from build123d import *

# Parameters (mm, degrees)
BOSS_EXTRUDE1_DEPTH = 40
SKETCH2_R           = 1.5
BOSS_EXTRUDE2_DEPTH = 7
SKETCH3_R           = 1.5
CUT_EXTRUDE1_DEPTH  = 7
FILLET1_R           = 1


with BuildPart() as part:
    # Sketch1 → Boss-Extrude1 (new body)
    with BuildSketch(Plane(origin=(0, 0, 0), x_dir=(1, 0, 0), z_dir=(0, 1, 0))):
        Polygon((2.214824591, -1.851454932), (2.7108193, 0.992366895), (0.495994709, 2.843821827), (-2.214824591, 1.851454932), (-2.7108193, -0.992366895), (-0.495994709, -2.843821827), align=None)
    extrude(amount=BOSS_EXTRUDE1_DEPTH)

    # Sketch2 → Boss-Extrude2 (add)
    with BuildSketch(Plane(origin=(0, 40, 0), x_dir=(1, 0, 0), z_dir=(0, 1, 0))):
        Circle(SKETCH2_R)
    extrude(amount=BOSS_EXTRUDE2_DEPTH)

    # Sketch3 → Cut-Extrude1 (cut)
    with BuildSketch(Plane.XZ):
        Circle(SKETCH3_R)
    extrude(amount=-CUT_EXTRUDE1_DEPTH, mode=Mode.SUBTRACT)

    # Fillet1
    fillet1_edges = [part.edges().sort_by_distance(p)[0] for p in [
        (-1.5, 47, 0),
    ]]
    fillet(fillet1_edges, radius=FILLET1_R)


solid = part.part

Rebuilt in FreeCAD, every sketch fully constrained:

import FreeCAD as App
import Part
import Sketcher
from FreeCAD import Vector
Q = App.Units.Quantity


def edges_at(feature, points):
    """Names of the edges that pass closest to the given points."""
    edges = feature.Shape.Edges
    near = lambda p: min(range(len(edges)), key=lambda i: edges[i].distToShape(Part.Vertex(*p))[0])
    return sorted({f"Edge{near(p) + 1}" for p in points})


def add_polygon(sketch, points):
    """Adds a closed chain of lines whose ends are joined by coincident constraints."""
    first, n = sketch.GeometryCount, len(points)
    for a, b in zip(points, points[1:] + points[:1]):
        sketch.addGeometry(Part.LineSegment(App.Vector(*a, 0), App.Vector(*b, 0)), False)
    for i in range(n):
        sketch.addConstraint(Sketcher.Constraint("Coincident", first + i, 2, first + (i + 1) % n, 1))

doc = App.newDocument("Part")
body = doc.addObject("PartDesign::Body", "Body")

# Sketch on XZ plane
sketch1 = body.newObject("Sketcher::SketchObject", "Sketch")
sketch1.AttachmentSupport = (doc.getObject("XZ_Plane"), [""])
sketch1.MapMode = "FlatFace"
add_polygon(sketch1, [(2.2, 1.9), (2.7, -1), (0.5, -2.8), (-2.2, -1.9), (-2.7, 1), (-0.5, 2.8)])  # lines 0-5
sketch1.addConstraint([
    Sketcher.Constraint("Symmetric", 0, 2, 3, 2, -1, 1),
    Sketcher.Constraint("Symmetric", 1, 2, 4, 2, -1, 1),
    Sketcher.Constraint("Symmetric", 2, 2, 5, 2, -1, 1),
    Sketcher.Constraint("Equal", 0, 1),
    Sketcher.Constraint("Equal", 1, 2),
    Sketcher.Constraint("Distance", 0, Q("2.886751 mm")),
    Sketcher.Constraint("DistanceX", -1, 1, 0, 2, Q("2.710819 mm")),
    Sketcher.Constraint("DistanceY", 1, 2, -1, 1, Q("2.843822 mm")),
    Sketcher.Constraint("DistanceX", 2, 2, 1, 2, Q("2.710819 mm")),
])
pad1 = body.newObject("PartDesign::Pad", "Pad")
pad1.Profile = sketch1
pad1.Length = 40
pad1.Reversed = True

# Sketch on XZ plane
sketch2 = body.newObject("Sketcher::SketchObject", "Sketch001")
sketch2.AttachmentSupport = (doc.getObject("XZ_Plane"), [""])
sketch2.MapMode = "FlatFace"
sketch2.AttachmentOffset = App.Placement(Vector(0, 0, -40), App.Rotation())
sketch2.addGeometry(Part.Circle(Vector(0, 0, 0), Vector(0, 0, 1), 1.5), False)
sketch2.addConstraint([
    Sketcher.Constraint("Coincident", 0, 3, -1, 1),
    Sketcher.Constraint("Diameter", 0, Q("3 mm")),
])
pad2 = body.newObject("PartDesign::Pad", "Pad001")
pad2.Profile = sketch2
pad2.Length = 7
pad2.Reversed = True

# Sketch on XZ plane
sketch3 = body.newObject("Sketcher::SketchObject", "Sketch002")
sketch3.AttachmentSupport = (doc.getObject("XZ_Plane"), [""])
sketch3.MapMode = "FlatFace"
sketch3.addGeometry(Part.Circle(Vector(0, 0, 0), Vector(0, 0, 1), 1.5), False)
sketch3.addConstraint([
    Sketcher.Constraint("Coincident", 0, 3, -1, 1),
    Sketcher.Constraint("Diameter", 0, Q("3 mm")),
])
pocket1 = body.newObject("PartDesign::Pocket", "Pocket")
pocket1.Profile = sketch3
pocket1.Length = 7
doc.recompute()

fillet = body.newObject("PartDesign::Fillet", "Fillet")
fillet.Base = (pocket1, edges_at(pocket1, [(-1.5, 47, 0)]))
fillet.Radius = 1

doc.recompute()
